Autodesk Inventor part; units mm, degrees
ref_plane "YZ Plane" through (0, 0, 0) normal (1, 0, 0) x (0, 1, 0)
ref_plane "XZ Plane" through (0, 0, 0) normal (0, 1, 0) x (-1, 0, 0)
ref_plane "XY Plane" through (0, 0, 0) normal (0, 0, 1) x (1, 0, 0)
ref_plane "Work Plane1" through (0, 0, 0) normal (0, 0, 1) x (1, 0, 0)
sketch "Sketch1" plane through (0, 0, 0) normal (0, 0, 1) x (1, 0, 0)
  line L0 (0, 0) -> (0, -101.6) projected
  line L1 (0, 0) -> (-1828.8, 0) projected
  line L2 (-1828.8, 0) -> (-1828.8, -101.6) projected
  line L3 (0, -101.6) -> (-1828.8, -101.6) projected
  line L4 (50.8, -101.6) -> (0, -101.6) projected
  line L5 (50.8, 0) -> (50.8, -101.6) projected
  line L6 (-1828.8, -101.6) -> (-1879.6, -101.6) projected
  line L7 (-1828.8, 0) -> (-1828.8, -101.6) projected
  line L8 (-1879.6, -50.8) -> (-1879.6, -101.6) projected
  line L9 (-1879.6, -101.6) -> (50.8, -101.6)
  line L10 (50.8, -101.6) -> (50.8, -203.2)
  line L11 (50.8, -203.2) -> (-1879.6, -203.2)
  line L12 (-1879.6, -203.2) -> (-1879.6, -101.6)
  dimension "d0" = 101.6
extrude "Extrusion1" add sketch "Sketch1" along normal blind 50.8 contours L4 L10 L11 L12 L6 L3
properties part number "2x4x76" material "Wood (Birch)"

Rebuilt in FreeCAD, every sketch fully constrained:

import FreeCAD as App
import Part
import Sketcher

V = App.Vector
Q = App.Units.Quantity

doc = App.newDocument("Part")
body = doc.addObject("PartDesign::Body", "Body")

# Sketch on XY plane
sketch1 = body.newObject("Sketcher::SketchObject", "Sketch")
sketch1.AttachmentSupport = (doc.getObject("XY_Plane"), [""])
sketch1.MapMode = "FlatFace"
sketch1.addGeometry([
    Part.LineSegment(V(50.8, -101.6, 0), V(-1879.6, -101.6, 0)),
    Part.LineSegment(V(-1879.6, -101.6, 0), V(-1879.6, -203.2, 0)),
    Part.LineSegment(V(-1879.6, -203.2, 0), V(50.8, -203.2, 0)),
    Part.LineSegment(V(50.8, -203.2, 0), V(50.8, -101.6, 0)),
], False)
sketch1.addConstraint([
    Sketcher.Constraint("Coincident", 0, 2, 1, 1),
    Sketcher.Constraint("Coincident", 1, 2, 2, 1),
    Sketcher.Constraint("Coincident", 2, 2, 3, 1),
    Sketcher.Constraint("Coincident", 3, 2, 0, 1),
    Sketcher.Constraint("Horizontal", 0),
    Sketcher.Constraint("Vertical", 1),
    Sketcher.Constraint("Horizontal", 2),
    Sketcher.Constraint("Vertical", 3),
    Sketcher.Constraint("DistanceY", 1, 2, 1, 1, Q("4 in")),
    Sketcher.Constraint("DistanceY", 0, 2, -1, 1, Q("4 in")),
    Sketcher.Constraint("DistanceX", 0, 2, 0, 1, Q("76 in")),
    Sketcher.Constraint("DistanceX", 0, 2, -1, 1, Q("74 in")),
])
pad1 = body.newObject("PartDesign::Pad", "Pad")
pad1.Profile = sketch1
pad1.Length = Q("2 in")

doc.recompute()
